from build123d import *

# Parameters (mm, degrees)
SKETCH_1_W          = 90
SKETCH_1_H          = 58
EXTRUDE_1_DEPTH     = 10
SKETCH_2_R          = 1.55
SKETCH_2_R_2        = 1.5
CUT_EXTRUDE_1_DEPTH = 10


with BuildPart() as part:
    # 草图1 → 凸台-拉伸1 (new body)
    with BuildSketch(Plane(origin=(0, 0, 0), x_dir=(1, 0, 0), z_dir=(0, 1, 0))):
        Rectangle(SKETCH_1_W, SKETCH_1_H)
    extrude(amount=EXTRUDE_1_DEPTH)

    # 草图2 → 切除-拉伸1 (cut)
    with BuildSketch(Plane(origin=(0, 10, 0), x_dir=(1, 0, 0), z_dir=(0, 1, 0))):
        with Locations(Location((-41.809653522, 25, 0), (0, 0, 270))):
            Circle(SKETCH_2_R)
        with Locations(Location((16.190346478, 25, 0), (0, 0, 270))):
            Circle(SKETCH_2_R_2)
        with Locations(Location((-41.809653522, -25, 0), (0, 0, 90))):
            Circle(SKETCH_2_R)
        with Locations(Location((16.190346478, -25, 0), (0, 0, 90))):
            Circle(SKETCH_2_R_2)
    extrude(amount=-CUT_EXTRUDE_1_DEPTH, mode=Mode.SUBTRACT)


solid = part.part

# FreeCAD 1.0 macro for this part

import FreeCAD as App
import Part
import Sketcher
from FreeCAD import Vector


def add_polygon(sketch, points):
    """Adds a closed chain of lines whose ends are joined by coincident constraints."""
    first, n = sketch.GeometryCount, len(points)
    for a, b in zip(points, points[1:] + points[:1]):
        sketch.addGeometry(Part.LineSegment(App.Vector(*a, 0), App.Vector(*b, 0)), False)
    for i in range(n):
        sketch.addConstraint(Sketcher.Constraint("Coincident", first + i, 2, first + (i + 1) % n, 1))

doc = App.newDocument("Part")
params = doc.addObject("Spreadsheet::Sheet", "Params")
for row, (alias, value) in enumerate([
    ("sketch1_width", "90 mm"),
    ("sketch1_height", "58 mm"),
    ("pad1_length", "10 mm"),
    ("sketch2_diameter", "3 mm"),
    ("sketch2_diameter2", "3.1 mm"),
    ("pocket1_length", "10 mm"),
], start=1):
    params.set(f"A{row}", alias)
    params.set(f"B{row}", "=" + value)
    params.setAlias(f"B{row}", alias)

body = doc.addObject("PartDesign::Body", "Body")

# Sketch on XZ plane
sketch1 = body.newObject("Sketcher::SketchObject", "Sketch")
sketch1.AttachmentSupport = (doc.getObject("XZ_Plane"), [""])
sketch1.MapMode = "FlatFace"
add_polygon(sketch1, [(-45, -29), (-45, 29), (45, 29), (45, -29)])  # lines 0-3
sketch1.addConstraint([
    Sketcher.Constraint("Vertical", 0),
    Sketcher.Constraint("Horizontal", 1),
    Sketcher.Constraint("Vertical", 2),
    Sketcher.Constraint("Horizontal", 3),
    Sketcher.Constraint("Symmetric", 0, 2, 2, 2, -1, 1),
    Sketcher.Constraint("DistanceX", 1, 1, 1, 2, 90.0),
    Sketcher.Constraint("DistanceY", 0, 1, 0, 2, 58.0),
])
sketch1.setExpression("Constraints[9]", "Params.sketch1_width")
sketch1.setExpression("Constraints[10]", "Params.sketch1_height")
pad1 = body.newObject("PartDesign::Pad", "Pad")
pad1.Profile = sketch1
pad1.setExpression("Length", "Params.pad1_length")
pad1.Reversed = True

# Sketch on XZ plane
sketch2 = body.newObject("Sketcher::SketchObject", "Sketch001")
sketch2.AttachmentSupport = (doc.getObject("XZ_Plane"), [""])
sketch2.MapMode = "FlatFace"
sketch2.AttachmentOffset = App.Placement(Vector(0, 0, -10), App.Rotation())
sketch2.addGeometry([
    Part.Circle(Vector(-41.8, -25, 0), Vector(0, 0, 1), 1.6),
    Part.Circle(Vector(16.2, -25, 0), Vector(0, 0, 1), 1.5),
    Part.Circle(Vector(-41.8, 25, 0), Vector(0, 0, 1), 1.6),
    Part.Circle(Vector(16.2, 25, 0), Vector(0, 0, 1), 1.5),
], False)
sketch2.addConstraint([
    Sketcher.Constraint("Equal", 0, 2),
    Sketcher.Constraint("Equal", 1, 3),
    Sketcher.Constraint("Symmetric", 0, 3, 2, 3, -1),
    Sketcher.Constraint("Symmetric", 1, 3, 3, 3, -1),
    Sketcher.Constraint("Horizontal", 0, 3, 1, 3),
    Sketcher.Constraint("Diameter", 1, 3.0),
    Sketcher.Constraint("Diameter", 0, 3.1),
    Sketcher.Constraint("DistanceY", 0, 3, -1, 1, 25.0),
    Sketcher.Constraint("DistanceX", 0, 3, 1, 3, 58.0),
    Sketcher.Constraint("DistanceX", 0, 3, -1, 1, 41.809654),
])
sketch2.setExpression("Constraints[5]", "Params.sketch2_diameter")
sketch2.setExpression("Constraints[6]", "Params.sketch2_diameter2")
pocket1 = body.newObject("PartDesign::Pocket", "Pocket")
pocket1.Profile = sketch2
pocket1.setExpression("Length", "Params.pocket1_length")
pocket1.Reversed = True

doc.recompute()
